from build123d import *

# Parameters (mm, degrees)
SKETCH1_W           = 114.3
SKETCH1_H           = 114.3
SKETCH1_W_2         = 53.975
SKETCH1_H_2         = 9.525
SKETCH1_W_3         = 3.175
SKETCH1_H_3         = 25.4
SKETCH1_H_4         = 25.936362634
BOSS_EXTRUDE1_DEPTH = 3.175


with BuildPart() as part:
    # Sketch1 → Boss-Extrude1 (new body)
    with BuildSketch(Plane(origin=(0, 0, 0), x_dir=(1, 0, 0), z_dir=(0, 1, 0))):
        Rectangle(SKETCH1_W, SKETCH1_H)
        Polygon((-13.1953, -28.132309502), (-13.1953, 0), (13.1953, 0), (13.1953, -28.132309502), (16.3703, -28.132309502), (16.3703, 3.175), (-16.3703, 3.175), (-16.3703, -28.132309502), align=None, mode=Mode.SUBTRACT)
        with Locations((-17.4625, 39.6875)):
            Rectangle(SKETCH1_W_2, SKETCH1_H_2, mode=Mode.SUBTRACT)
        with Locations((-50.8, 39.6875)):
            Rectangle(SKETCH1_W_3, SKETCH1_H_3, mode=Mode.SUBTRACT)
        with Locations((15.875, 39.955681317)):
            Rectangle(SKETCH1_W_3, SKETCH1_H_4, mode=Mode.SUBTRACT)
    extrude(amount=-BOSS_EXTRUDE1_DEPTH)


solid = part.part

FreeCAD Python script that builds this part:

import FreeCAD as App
import Part
import Sketcher
Q = App.Units.Quantity

doc = App.newDocument("Part")
params = doc.addObject("Spreadsheet::Sheet", "Params")
for row, (alias, value) in enumerate([
    ("sketch1_height", "1 in"),
    ("sketch1_width", "4.5 in"),
    ("sketch1_width2", "0.125 in"),
    ("sketch1_width3", "1.289 in"),
    ("sketch1_width4", "2.125 in"),
    ("pad1_length", "0.125 in"),
], start=1):
    params.set(f"A{row}", alias)
    params.set(f"B{row}", "=" + value)
    params.setAlias(f"B{row}", alias)

body = doc.addObject("PartDesign::Body", "Body")

# Sketch on XZ plane
sketch1 = doc.addObject("Sketcher::SketchObject", "Sketch")
body.addObject(sketch1)
sketch1.AttachmentSupport = (doc.XZ_Plane, [""])
sketch1.MapMode = "FlatFace"
sketch1.addGeometry([
    Part.LineSegment(App.Vector(-57.1, -57.1, 0), App.Vector(-57.1, 57.1, 0)),  # 0
    Part.LineSegment(App.Vector(-57.1, 57.1, 0), App.Vector(57.1, 57.1, 0)),  # 1
    Part.LineSegment(App.Vector(57.1, 57.1, 0), App.Vector(57.1, -57.1, 0)),  # 2
    Part.LineSegment(App.Vector(57.1, -57.1, 0), App.Vector(-57.1, -57.1, 0)),  # 3
    Part.LineSegment(App.Vector(-13.2, 0, 0), App.Vector(-13.2, 28.1, 0)),  # 4
    Part.LineSegment(App.Vector(-13.2, 28.1, 0), App.Vector(-16.4, 28.1, 0)),  # 5
    Part.LineSegment(App.Vector(-16.4, 28.1, 0), App.Vector(-16.4, -3.2, 0)),  # 6
    Part.LineSegment(App.Vector(-16.4, -3.2, 0), App.Vector(16.4, -3.2, 0)),  # 7
    Part.LineSegment(App.Vector(16.4, -3.2, 0), App.Vector(16.4, 28.1, 0)),  # 8
    Part.LineSegment(App.Vector(16.4, 28.1, 0), App.Vector(13.2, 28.1, 0)),  # 9
    Part.LineSegment(App.Vector(13.2, 28.1, 0), App.Vector(13.2, 0, 0)),  # 10
    Part.LineSegment(App.Vector(13.2, 0, 0), App.Vector(-13.2, 0, 0)),  # 11
    Part.LineSegment(App.Vector(-49.2, -27, 0), App.Vector(-52.4, -27, 0)),  # 12
    Part.LineSegment(App.Vector(-52.4, -27, 0), App.Vector(-52.4, -52.4, 0)),  # 13
    Part.LineSegment(App.Vector(-52.4, -52.4, 0), App.Vector(-49.2, -52.4, 0)),  # 14
    Part.LineSegment(App.Vector(-49.2, -52.4, 0), App.Vector(-49.2, -27, 0)),  # 15
    Part.LineSegment(App.Vector(9.5, -34.9, 0), App.Vector(-44.5, -34.9, 0)),  # 16
    Part.LineSegment(App.Vector(-44.5, -34.9, 0), App.Vector(-44.5, -44.5, 0)),  # 17
    Part.LineSegment(App.Vector(-44.5, -44.5, 0), App.Vector(9.5, -44.5, 0)),  # 18
    Part.LineSegment(App.Vector(9.5, -44.5, 0), App.Vector(9.5, -34.9, 0)),  # 19
    Part.LineSegment(App.Vector(17.5, -27, 0), App.Vector(14.3, -27, 0)),  # 20
    Part.LineSegment(App.Vector(14.3, -27, 0), App.Vector(14.3, -52.9, 0)),  # 21
    Part.LineSegment(App.Vector(14.3, -52.9, 0), App.Vector(17.5, -52.9, 0)),  # 22
    Part.LineSegment(App.Vector(17.5, -52.9, 0), App.Vector(17.5, -27, 0)),  # 23
], False)
sketch1.addConstraint([
    Sketcher.Constraint("Coincident", 0, 2, 1, 1),
    Sketcher.Constraint("Coincident", 1, 2, 2, 1),
    Sketcher.Constraint("Coincident", 2, 2, 3, 1),
    Sketcher.Constraint("Coincident", 3, 2, 0, 1),
    Sketcher.Constraint("Coincident", 4, 2, 5, 1),
    Sketcher.Constraint("Coincident", 5, 2, 6, 1),
    Sketcher.Constraint("Coincident", 6, 2, 7, 1),
    Sketcher.Constraint("Coincident", 7, 2, 8, 1),
    Sketcher.Constraint("Coincident", 8, 2, 9, 1),
    Sketcher.Constraint("Coincident", 9, 2, 10, 1),
    Sketcher.Constraint("Coincident", 10, 2, 11, 1),
    Sketcher.Constraint("Coincident", 11, 2, 4, 1),
    Sketcher.Constraint("Coincident", 12, 2, 13, 1),
    Sketcher.Constraint("Coincident", 13, 2, 14, 1),
    Sketcher.Constraint("Coincident", 14, 2, 15, 1),
    Sketcher.Constraint("Coincident", 15, 2, 12, 1),
    Sketcher.Constraint("Coincident", 16, 2, 17, 1),
    Sketcher.Constraint("Coincident", 17, 2, 18, 1),
    Sketcher.Constraint("Coincident", 18, 2, 19, 1),
    Sketcher.Constraint("Coincident", 19, 2, 16, 1),
    Sketcher.Constraint("Coincident", 20, 2, 21, 1),
    Sketcher.Constraint("Coincident", 21, 2, 22, 1),
    Sketcher.Constraint("Coincident", 22, 2, 23, 1),
    Sketcher.Constraint("Coincident", 23, 2, 20, 1),
    Sketcher.Constraint("Vertical", 0),
    Sketcher.Constraint("Horizontal", 1),
    Sketcher.Constraint("Vertical", 2),
    Sketcher.Constraint("Horizontal", 3),
    Sketcher.Constraint("Vertical", 4),
    Sketcher.Constraint("Horizontal", 5),
    Sketcher.Constraint("Vertical", 6),
    Sketcher.Constraint("Horizontal", 7),
    Sketcher.Constraint("Vertical", 8),
    Sketcher.Constraint("Horizontal", 9),
    Sketcher.Constraint("Vertical", 10),
    Sketcher.Constraint("Horizontal", 11),
    Sketcher.Constraint("Horizontal", 12),
    Sketcher.Constraint("Vertical", 13),
    Sketcher.Constraint("Horizontal", 14),
    Sketcher.Constraint("Vertical", 15),
    Sketcher.Constraint("Horizontal", 16),
    Sketcher.Constraint("Vertical", 17),
    Sketcher.Constraint("Horizontal", 18),
    Sketcher.Constraint("Vertical", 19),
    Sketcher.Constraint("Horizontal", 20),
    Sketcher.Constraint("Vertical", 21),
    Sketcher.Constraint("Horizontal", 22),
    Sketcher.Constraint("Vertical", 23),
    Sketcher.Constraint("Symmetric", 0, 2, 2, 2, -1, 1),
    Sketcher.Constraint("Symmetric", 10, 2, 11, 2, -1, 1),
    Sketcher.Constraint("Symmetric", 5, 2, 8, 2, -2),
    Sketcher.Constraint("Horizontal", 15, 2, 20, 2),
    Sketcher.Constraint("Equal", 9, 12),
    Sketcher.Constraint("Equal", 14, 20),
    Sketcher.Constraint("Equal", 3, 0),
    Sketcher.Constraint("DistanceY", 13, 2, 13, 1, Q("1 in")),
    Sketcher.Constraint("DistanceX", 1, 1, 1, 2, Q("4.5 in")),
    Sketcher.Constraint("DistanceX", 3, 2, 16, 2, Q("0.5 in")),
    Sketcher.Constraint("DistanceY", 3, 2, 17, 2, Q("0.5 in")),
    Sketcher.Constraint("DistanceX", 5, 2, 5, 1, Q("0.125 in")),
    Sketcher.Constraint("DistanceX", 7, 1, 7, 2, Q("1.289 in")),
    Sketcher.Constraint("DistanceX", 16, 2, 16, 1, Q("2.125 in")),
    Sketcher.Constraint("DistanceY", 17, 2, 17, 1, Q("0.375 in")),
    Sketcher.Constraint("DistanceY", 19, 2, 7, 2, Q("1.25 in")),
    Sketcher.Constraint("DistanceX", 12, 2, -1, 1, Q("2.0625 in")),
    Sketcher.Constraint("DistanceY", 12, 2, -1, 1, Q("1.0625 in")),
    Sketcher.Constraint("DistanceX", -1, 1, 20, 2, Q("0.5625 in")),
    Sketcher.Constraint("DistanceY", 4, 1, 4, 2, Q("28.13231 mm")),
    Sketcher.Constraint("DistanceY", 21, 2, 21, 1, Q("25.936363 mm")),
])
sketch1.setExpression("Constraints[55]", "Params.sketch1_height")
sketch1.setExpression("Constraints[56]", "Params.sketch1_width")
sketch1.setExpression("Constraints[59]", "Params.sketch1_width2")
sketch1.setExpression("Constraints[60]", "Params.sketch1_width3")
sketch1.setExpression("Constraints[61]", "Params.sketch1_width4")
pad1 = doc.addObject("PartDesign::Pad", "Pad")
body.addObject(pad1)
pad1.Profile = sketch1
pad1.setExpression("Length", "Params.pad1_length")

doc.recompute()
